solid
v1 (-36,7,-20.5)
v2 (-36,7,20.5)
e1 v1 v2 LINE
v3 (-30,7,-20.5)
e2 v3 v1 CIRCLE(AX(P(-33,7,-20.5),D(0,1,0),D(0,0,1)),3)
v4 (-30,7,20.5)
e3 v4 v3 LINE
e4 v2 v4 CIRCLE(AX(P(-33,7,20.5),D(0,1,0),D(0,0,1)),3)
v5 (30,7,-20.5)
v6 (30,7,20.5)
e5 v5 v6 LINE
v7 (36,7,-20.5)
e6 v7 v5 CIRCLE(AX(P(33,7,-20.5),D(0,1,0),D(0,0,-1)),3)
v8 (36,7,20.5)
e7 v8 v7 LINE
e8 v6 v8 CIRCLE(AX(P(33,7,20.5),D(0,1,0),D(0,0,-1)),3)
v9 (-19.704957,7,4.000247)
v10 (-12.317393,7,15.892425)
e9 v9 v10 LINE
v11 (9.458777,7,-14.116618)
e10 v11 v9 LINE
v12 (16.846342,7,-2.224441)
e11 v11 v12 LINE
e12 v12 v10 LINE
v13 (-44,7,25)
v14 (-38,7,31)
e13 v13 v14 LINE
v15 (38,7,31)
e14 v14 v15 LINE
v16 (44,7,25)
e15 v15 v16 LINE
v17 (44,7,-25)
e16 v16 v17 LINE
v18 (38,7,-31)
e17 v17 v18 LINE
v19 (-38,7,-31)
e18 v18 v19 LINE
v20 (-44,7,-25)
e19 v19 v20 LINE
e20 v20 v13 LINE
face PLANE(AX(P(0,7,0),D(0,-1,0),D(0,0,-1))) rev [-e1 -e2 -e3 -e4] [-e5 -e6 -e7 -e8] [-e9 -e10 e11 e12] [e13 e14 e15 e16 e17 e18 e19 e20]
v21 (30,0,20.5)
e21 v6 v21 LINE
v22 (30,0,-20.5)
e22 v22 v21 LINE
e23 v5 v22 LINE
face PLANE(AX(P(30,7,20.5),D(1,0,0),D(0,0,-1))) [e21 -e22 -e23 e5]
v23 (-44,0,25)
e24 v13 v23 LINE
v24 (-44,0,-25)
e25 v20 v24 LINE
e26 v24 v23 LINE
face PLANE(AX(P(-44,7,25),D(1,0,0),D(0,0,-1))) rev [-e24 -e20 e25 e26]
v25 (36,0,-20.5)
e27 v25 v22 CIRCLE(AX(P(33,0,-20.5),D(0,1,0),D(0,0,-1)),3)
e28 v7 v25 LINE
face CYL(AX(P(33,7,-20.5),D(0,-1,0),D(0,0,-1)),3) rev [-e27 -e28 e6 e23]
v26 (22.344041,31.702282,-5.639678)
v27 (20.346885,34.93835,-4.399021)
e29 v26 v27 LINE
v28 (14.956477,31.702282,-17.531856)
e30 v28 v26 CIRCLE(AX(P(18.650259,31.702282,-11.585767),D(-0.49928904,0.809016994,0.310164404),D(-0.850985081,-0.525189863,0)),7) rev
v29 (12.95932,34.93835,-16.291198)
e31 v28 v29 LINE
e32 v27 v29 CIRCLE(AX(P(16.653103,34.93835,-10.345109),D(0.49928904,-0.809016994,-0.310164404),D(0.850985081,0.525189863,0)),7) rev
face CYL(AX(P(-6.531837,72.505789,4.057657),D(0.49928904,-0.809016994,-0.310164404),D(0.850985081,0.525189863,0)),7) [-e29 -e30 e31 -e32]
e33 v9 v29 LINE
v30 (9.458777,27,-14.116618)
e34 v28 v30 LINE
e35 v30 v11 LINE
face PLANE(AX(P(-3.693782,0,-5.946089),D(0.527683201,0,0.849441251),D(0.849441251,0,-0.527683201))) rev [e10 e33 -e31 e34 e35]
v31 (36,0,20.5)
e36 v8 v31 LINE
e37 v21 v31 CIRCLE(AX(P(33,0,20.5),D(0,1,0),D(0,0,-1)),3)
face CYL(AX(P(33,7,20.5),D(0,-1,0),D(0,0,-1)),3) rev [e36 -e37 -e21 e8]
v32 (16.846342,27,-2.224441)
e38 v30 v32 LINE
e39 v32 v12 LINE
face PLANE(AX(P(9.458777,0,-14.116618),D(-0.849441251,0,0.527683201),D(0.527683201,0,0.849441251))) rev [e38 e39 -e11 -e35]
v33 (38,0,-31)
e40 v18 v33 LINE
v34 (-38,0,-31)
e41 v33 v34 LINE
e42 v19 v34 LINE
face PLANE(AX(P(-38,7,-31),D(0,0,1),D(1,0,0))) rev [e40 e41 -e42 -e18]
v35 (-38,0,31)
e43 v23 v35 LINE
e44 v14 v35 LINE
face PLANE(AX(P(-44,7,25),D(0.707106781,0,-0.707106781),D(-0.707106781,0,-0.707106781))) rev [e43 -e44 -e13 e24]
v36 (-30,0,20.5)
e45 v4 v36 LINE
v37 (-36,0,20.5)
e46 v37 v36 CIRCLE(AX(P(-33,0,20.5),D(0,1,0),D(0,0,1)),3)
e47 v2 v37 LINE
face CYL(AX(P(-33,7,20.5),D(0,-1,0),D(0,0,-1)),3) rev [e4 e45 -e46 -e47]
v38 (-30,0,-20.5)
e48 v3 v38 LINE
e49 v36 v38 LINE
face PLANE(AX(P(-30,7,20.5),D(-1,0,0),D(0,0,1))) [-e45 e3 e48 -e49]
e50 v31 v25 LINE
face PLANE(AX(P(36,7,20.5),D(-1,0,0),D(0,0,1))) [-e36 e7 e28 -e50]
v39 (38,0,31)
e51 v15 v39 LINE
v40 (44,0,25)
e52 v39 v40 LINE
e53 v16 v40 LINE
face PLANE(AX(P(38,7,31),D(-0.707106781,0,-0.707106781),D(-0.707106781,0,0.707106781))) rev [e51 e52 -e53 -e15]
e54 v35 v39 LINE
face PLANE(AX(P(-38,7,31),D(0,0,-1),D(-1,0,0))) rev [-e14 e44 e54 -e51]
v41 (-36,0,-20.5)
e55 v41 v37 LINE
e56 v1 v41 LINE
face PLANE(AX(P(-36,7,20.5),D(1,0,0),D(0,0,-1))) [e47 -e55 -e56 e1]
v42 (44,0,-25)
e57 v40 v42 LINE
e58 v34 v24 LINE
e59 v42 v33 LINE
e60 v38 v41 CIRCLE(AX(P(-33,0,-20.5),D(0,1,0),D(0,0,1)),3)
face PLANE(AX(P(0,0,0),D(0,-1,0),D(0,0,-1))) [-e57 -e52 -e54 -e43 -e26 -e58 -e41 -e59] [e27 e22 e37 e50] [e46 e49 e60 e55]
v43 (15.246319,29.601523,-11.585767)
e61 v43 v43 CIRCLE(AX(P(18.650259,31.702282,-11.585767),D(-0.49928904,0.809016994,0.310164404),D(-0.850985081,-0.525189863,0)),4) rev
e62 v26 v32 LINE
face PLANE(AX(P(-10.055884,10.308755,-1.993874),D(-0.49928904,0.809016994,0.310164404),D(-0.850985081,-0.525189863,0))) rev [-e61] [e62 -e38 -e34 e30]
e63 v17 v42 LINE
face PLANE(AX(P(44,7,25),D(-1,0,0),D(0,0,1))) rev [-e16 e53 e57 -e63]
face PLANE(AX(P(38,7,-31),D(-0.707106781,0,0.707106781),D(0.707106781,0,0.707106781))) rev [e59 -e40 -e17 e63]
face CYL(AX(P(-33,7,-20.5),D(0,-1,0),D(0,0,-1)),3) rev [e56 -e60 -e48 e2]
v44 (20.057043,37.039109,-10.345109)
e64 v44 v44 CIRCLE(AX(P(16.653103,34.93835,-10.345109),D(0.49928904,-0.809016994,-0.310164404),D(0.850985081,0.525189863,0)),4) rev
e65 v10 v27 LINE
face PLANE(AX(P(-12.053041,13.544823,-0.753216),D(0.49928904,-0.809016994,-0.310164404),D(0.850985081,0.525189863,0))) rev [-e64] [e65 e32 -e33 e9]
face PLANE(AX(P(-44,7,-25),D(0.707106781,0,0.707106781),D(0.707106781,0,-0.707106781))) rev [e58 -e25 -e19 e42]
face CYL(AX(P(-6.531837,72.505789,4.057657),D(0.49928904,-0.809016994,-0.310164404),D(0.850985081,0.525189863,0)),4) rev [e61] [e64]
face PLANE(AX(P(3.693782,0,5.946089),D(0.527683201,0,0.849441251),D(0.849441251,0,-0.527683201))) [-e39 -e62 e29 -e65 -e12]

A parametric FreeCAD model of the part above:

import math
import FreeCAD as App
import Part
import Sketcher
Q = App.Units.Quantity


def add_polygon(sketch, points):
    """Adds a closed chain of lines whose ends are joined by coincident constraints."""
    first, n = sketch.GeometryCount, len(points)
    for a, b in zip(points, points[1:] + points[:1]):
        sketch.addGeometry(Part.LineSegment(App.Vector(*a, 0), App.Vector(*b, 0)), False)
    for i in range(n):
        sketch.addConstraint(Sketcher.Constraint("Coincident", first + i, 2, first + (i + 1) % n, 1))

doc = App.newDocument("Part")
body = doc.addObject("PartDesign::Body", "Body")

# Sketch on XZ plane
sketch1 = body.newObject("Sketcher::SketchObject", "Sketch")
sketch1.AttachmentSupport = (doc.getObject("XZ_Plane"), [""])
sketch1.MapMode = "FlatFace"
add_polygon(sketch1, [(-38, -31), (-44, -25), (-44, 25), (-38, 31), (38, 31), (44, 25), (44, -25), (38, -31)])  # lines 0-7
sketch1.addGeometry(Part.ArcOfCircle(Part.Circle(App.Vector(33, 20.5, 0), App.Vector(0, 0, 1), 3), math.radians(0), math.radians(180)), False)  # 8
sketch1.addGeometry(Part.LineSegment(App.Vector(30, 20.5, 0), App.Vector(30, -20.5, 0)), False)  # 9
sketch1.addGeometry(Part.ArcOfCircle(Part.Circle(App.Vector(33, -20.5, 0), App.Vector(0, 0, 1), 3), math.radians(180), math.radians(360)), False)  # 10
sketch1.addGeometry(Part.LineSegment(App.Vector(36, -20.5, 0), App.Vector(36, 20.5, 0)), False)  # 11
sketch1.addGeometry(Part.LineSegment(App.Vector(-36, 20.5, 0), App.Vector(-36, -20.5, 0)), False)  # 12
sketch1.addGeometry(Part.ArcOfCircle(Part.Circle(App.Vector(-33, -20.5, 0), App.Vector(0, 0, 1), 3), math.radians(180), math.radians(360)), False)  # 13
sketch1.addGeometry(Part.LineSegment(App.Vector(-30, -20.5, 0), App.Vector(-30, 20.5, 0)), False)  # 14
sketch1.addGeometry(Part.ArcOfCircle(Part.Circle(App.Vector(-33, 20.5, 0), App.Vector(0, 0, 1), 3), math.radians(0), math.radians(180)), False)  # 15
sketch1.addConstraint([
    Sketcher.Constraint("Tangent", 8, 2, 9, 1),
    Sketcher.Constraint("Tangent", 9, 2, 10, 1),
    Sketcher.Constraint("Tangent", 10, 2, 11, 1),
    Sketcher.Constraint("Tangent", 11, 2, 8, 1),
    Sketcher.Constraint("Tangent", 12, 2, 13, 1),
    Sketcher.Constraint("Tangent", 13, 2, 14, 1),
    Sketcher.Constraint("Tangent", 14, 2, 15, 1),
    Sketcher.Constraint("Tangent", 15, 2, 12, 1),
    Sketcher.Constraint("Vertical", 1),
    Sketcher.Constraint("Horizontal", 3),
    Sketcher.Constraint("Vertical", 5),
    Sketcher.Constraint("Horizontal", 7),
    Sketcher.Constraint("Vertical", 9),
    Sketcher.Constraint("Vertical", 11),
    Sketcher.Constraint("Vertical", 12),
    Sketcher.Constraint("Vertical", 14),
    Sketcher.Constraint("Equal", 10, 13),
    Sketcher.Constraint("Symmetric", 8, 3, 13, 3, -1, 1),
    Sketcher.Constraint("Symmetric", 0, 2, 4, 2, -1, 1),
    Sketcher.Constraint("Symmetric", 2, 2, 6, 2, -1, 1),
    Sketcher.Constraint("Perpendicular", 0, 2),
    Sketcher.Constraint("Perpendicular", 2, 4),
    Sketcher.Constraint("Perpendicular", 4, 6),
    Sketcher.Constraint("Horizontal", 10, 3, 13, 3),
    Sketcher.Constraint("Horizontal", 8, 3, 15, 3),
    Sketcher.Constraint("Horizontal", 1, 2, 4, 2),
    Sketcher.Constraint("Vertical", 3, 2, 6, 2),
    Sketcher.Constraint("Radius", 8, 3.0),
    Sketcher.Constraint("DistanceX", 3, 1, 3, 2, 76.0),
    Sketcher.Constraint("DistanceY", 1, 1, 1, 2, 50.0),
    Sketcher.Constraint("DistanceY", 9, 2, 9, 1, 41.0),
    Sketcher.Constraint("DistanceX", -1, 1, 8, 3, 33.0),
    Sketcher.Constraint("DistanceX", 0, 2, -1, 1, 44.0),
])
pad1 = body.newObject("PartDesign::Pad", "Pad")
pad1.Profile = sketch1
pad1.Length = 7
pad1.Reversed = True

# Sketch on an angled plane
sketch2 = body.newObject("Sketcher::SketchObject", "Sketch001")
sketch2.Placement = App.Placement(App.Vector(0, 0, 0), App.Rotation(App.Vector(0.849441251, 0, -0.527683201), App.Vector(0, 1, 0), App.Vector(0.527683201, 0, 0.849441251), "ZXY"))
add_polygon(sketch2, [(-18.8, 7), (15.5, 7), (15.5, 27), (27.6, 35.8), (25.3, 39.1)])  # lines 0-4
sketch2.addConstraint([
    Sketcher.Constraint("Horizontal", 0),
    Sketcher.Constraint("Vertical", 1),
    Sketcher.Constraint("Perpendicular", 2, 3),
    Sketcher.Constraint("Perpendicular", 3, 4),
    Sketcher.Constraint("DistanceY", 1, 1, 1, 2, 20.0),
    Sketcher.Constraint("Angle", 2, Q("36 deg")),
    Sketcher.Constraint("Distance", 2, 15.0),
    Sketcher.Constraint("Distance", 3, 4.0),
    Sketcher.Constraint("DistanceY", -1, 1, 0, 2, 7.0),
    Sketcher.Constraint("DistanceX", -1, 1, 3, 2, 25.267892),
])
pad2 = body.newObject("PartDesign::Pad", "Pad001")
pad2.Profile = sketch2
pad2.Length = 14
pad2.Midplane = True

# Sketch on an angled plane
sketch3 = body.newObject("Sketcher::SketchObject", "Sketch002")
sketch3.Placement = App.Placement(App.Vector(-8.359258, 13.544823, 5.192872), App.Rotation(App.Vector(0.866435488, 0.466201263, 0.178734239), App.Vector(0, 0.357977493, -0.933730215), App.Vector(-0.49928904, 0.809016994, 0.310164404), "ZXY"))
sketch3.addGeometry([
    Part.Circle(App.Vector(28.9, 22.2, 0), App.Vector(0, 0, 1), 4),  # 0
    Part.ArcOfCircle(Part.Circle(App.Vector(28.9, 22.2, 0), App.Vector(0, 0, 1), 7), math.radians(38), math.radians(128)),  # 1
    Part.LineSegment(App.Vector(34.4, 26.4, 0), App.Vector(30.2, 32, 0)),  # 2
    Part.LineSegment(App.Vector(30.2, 32, 0), App.Vector(24.6, 27.7, 0)),  # 3
    Part.ArcOfCircle(Part.Circle(App.Vector(28.9, 22.2, 0), App.Vector(0, 0, 1), 7), math.radians(-52), math.radians(38)),  # 4
    Part.LineSegment(App.Vector(33.1, 16.6, 0), App.Vector(38.7, 20.9, 0)),  # 5
    Part.LineSegment(App.Vector(38.7, 20.9, 0), App.Vector(34.4, 26.4, 0)),  # 6
], False)
sketch3.addConstraint([
    Sketcher.Constraint("Tangent", 1, 1, 2, 1),
    Sketcher.Constraint("Coincident", 2, 2, 3, 1),
    Sketcher.Constraint("Tangent", 3, 2, 1, 2),
    Sketcher.Constraint("Tangent", 4, 1, 5, 1),
    Sketcher.Constraint("Coincident", 5, 2, 6, 1),
    Sketcher.Constraint("Tangent", 6, 2, 4, 2),
    Sketcher.Constraint("Coincident", 1, 3, 0, 3),
    Sketcher.Constraint("Coincident", 4, 3, 0, 3),
    Sketcher.Constraint("Coincident", 6, 2, 1, 1),
    Sketcher.Constraint("Perpendicular", 2, 3),
    Sketcher.Constraint("Parallel", 3, 5),
    Sketcher.Constraint("Diameter", 0, 8.0),
    Sketcher.Constraint("Radius", 1, 7.0),
    Sketcher.Constraint("DistanceX", -1, 1, 1, 1, 34.42016),
    Sketcher.Constraint("DistanceY", -1, 1, 2, 2, 31.981921),
    Sketcher.Constraint("DistanceX", -1, 1, 4, 1, 33.131311),
])
pocket1 = body.newObject("PartDesign::Pocket", "Pocket")
pocket1.Profile = sketch3
pocket1.Type = "TwoLengths"
pocket1.Length = 47.435908
pocket1.Length2 = 14
pocket1.Reversed = True

doc.recompute()
